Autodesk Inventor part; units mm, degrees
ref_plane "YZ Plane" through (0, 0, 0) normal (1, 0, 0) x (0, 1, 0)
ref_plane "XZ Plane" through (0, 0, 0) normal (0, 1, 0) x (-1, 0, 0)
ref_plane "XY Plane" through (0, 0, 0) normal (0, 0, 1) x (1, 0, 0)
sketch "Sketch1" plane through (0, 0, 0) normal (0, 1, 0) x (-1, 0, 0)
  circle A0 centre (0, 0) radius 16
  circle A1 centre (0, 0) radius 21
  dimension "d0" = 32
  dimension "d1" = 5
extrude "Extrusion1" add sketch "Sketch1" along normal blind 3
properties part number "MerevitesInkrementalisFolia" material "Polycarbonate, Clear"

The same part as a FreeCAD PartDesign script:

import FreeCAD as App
import Part
import Sketcher
from FreeCAD import Vector

doc = App.newDocument("Part")
body = doc.addObject("PartDesign::Body", "Body")

# Sketch on XZ plane
sketch1 = body.newObject("Sketcher::SketchObject", "Sketch")
sketch1.AttachmentSupport = (doc.getObject("XZ_Plane"), [""])
sketch1.MapMode = "FlatFace"
sketch1.addGeometry([
    Part.Circle(Vector(0, 0, 0), Vector(0, 0, 1), 21),
    Part.Circle(Vector(0, 0, 0), Vector(0, 0, 1), 16),
], False)
sketch1.addConstraint([
    Sketcher.Constraint("Coincident", 0, 3, -1, 1),
    Sketcher.Constraint("Coincident", 1, 3, -1, 1),
    Sketcher.Constraint("Diameter", 1, 32.0),
    Sketcher.Constraint("Diameter", 0, 42.0),
])
pad1 = body.newObject("PartDesign::Pad", "Pad")
pad1.Profile = sketch1
pad1.Length = 3
pad1.Reversed = True

doc.recompute()
